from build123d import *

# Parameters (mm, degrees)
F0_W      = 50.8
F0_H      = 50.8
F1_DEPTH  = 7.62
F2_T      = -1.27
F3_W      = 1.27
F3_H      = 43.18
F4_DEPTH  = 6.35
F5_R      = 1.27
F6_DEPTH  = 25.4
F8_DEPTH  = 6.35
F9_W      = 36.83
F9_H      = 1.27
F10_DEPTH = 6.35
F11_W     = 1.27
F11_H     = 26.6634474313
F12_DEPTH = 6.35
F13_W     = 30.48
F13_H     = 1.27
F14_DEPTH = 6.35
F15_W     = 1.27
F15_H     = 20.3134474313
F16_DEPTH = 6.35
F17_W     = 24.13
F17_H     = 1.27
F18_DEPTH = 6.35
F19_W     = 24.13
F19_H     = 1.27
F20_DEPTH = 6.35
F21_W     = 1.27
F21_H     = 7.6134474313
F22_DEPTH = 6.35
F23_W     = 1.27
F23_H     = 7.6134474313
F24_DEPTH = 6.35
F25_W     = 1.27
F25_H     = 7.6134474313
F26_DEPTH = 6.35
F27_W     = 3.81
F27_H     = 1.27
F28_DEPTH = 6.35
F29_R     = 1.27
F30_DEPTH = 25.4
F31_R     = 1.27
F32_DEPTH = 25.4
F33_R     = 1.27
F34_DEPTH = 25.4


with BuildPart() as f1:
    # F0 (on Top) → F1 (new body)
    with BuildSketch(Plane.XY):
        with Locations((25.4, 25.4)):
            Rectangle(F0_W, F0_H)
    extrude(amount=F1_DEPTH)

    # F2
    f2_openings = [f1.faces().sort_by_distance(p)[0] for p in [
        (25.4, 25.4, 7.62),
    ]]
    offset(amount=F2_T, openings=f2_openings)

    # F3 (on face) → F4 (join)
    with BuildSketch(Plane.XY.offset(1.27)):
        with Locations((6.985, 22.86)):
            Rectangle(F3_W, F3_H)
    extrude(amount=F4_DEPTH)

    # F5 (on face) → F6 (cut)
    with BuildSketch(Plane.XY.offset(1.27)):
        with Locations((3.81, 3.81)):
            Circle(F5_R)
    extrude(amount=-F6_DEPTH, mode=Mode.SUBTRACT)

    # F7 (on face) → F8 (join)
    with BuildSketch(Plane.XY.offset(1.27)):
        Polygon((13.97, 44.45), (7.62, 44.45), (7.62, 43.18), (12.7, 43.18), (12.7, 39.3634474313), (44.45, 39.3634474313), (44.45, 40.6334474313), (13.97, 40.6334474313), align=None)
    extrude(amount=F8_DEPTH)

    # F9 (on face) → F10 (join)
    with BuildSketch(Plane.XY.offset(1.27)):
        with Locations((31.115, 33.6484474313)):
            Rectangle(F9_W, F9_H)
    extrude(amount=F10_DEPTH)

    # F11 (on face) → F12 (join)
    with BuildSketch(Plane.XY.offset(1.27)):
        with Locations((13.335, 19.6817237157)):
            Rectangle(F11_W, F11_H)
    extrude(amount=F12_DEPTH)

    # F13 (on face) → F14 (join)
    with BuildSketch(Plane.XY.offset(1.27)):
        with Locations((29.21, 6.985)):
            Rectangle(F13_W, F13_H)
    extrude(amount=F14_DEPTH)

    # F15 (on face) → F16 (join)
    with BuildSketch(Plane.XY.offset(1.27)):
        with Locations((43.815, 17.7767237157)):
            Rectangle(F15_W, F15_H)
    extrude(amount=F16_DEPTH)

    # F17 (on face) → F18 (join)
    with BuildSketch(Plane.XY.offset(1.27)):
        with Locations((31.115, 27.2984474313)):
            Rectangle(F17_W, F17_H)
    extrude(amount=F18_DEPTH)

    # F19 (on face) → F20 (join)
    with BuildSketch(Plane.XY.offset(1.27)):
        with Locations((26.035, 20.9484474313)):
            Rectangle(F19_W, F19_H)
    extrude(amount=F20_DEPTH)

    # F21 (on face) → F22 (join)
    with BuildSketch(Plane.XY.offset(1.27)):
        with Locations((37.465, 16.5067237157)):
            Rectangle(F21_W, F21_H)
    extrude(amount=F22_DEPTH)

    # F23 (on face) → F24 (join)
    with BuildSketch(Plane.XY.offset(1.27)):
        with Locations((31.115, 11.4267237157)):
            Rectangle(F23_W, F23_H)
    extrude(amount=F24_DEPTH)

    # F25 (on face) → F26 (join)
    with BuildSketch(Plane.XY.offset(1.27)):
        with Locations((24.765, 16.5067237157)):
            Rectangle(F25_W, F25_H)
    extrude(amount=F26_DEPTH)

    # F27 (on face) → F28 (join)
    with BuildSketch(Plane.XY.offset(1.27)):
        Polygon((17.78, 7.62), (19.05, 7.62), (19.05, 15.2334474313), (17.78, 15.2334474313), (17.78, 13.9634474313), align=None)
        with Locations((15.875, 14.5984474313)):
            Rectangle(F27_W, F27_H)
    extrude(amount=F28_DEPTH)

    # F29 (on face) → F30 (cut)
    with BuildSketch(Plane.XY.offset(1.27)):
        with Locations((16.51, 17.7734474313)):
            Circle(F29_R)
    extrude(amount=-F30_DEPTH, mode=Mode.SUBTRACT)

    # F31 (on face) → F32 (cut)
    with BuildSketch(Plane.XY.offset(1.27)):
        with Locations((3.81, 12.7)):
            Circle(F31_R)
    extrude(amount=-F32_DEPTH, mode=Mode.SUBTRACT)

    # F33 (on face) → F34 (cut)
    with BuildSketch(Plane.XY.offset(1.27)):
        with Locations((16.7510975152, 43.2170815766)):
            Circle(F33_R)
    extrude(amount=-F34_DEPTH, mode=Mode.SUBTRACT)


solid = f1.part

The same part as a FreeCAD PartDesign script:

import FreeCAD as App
import Part
import Sketcher

V = App.Vector
Q = App.Units.Quantity


def faces_at(feature, points):
    """Names of the faces that lie closest to the given points."""
    faces = feature.Shape.Faces
    near = lambda p: min(range(len(faces)), key=lambda i: faces[i].distToShape(Part.Vertex(*p))[0])
    return sorted({f"Face{near(p) + 1}" for p in points})

doc = App.newDocument("Part")
body = doc.addObject("PartDesign::Body", "Body")

# Sketch on XY plane
sketch1 = body.newObject("Sketcher::SketchObject", "Sketch")
sketch1.AttachmentSupport = (doc.getObject("XY_Plane"), [""])
sketch1.MapMode = "FlatFace"
sketch1.addGeometry([
    Part.LineSegment(V(0, 50.8, 0), V(0, 0, 0)),
    Part.LineSegment(V(0, 0, 0), V(50.8, 0, 0)),
    Part.LineSegment(V(50.8, 0, 0), V(50.8, 50.8, 0)),
    Part.LineSegment(V(50.8, 50.8, 0), V(0, 50.8, 0)),
], False)
sketch1.addConstraint([
    Sketcher.Constraint("Coincident", 0, 2, 1, 1),
    Sketcher.Constraint("Coincident", 1, 2, 2, 1),
    Sketcher.Constraint("Coincident", 2, 2, 3, 1),
    Sketcher.Constraint("Coincident", 3, 2, 0, 1),
    Sketcher.Constraint("Vertical", 0),
    Sketcher.Constraint("Horizontal", 1),
    Sketcher.Constraint("Vertical", 2),
    Sketcher.Constraint("Horizontal", 3),
    Sketcher.Constraint("Coincident", 0, 2, -1, 1),
    Sketcher.Constraint("Equal", 3, 0),
    Sketcher.Constraint("DistanceX", 1, 1, 1, 2, Q("2 in")),
])
pad1 = body.newObject("PartDesign::Pad", "Pad")
pad1.Profile = sketch1
pad1.Length = Q("0.3 in")
doc.recompute()

thickness = body.newObject("PartDesign::Thickness", "Thickness")
thickness.Base = (pad1, faces_at(pad1, [(25.4, 25.4, 7.62)]))
thickness.Value = Q("0.05 in")
thickness.Reversed = True
thickness.Join = "Arc"

# Sketch on XY plane
sketch2 = body.newObject("Sketcher::SketchObject", "Sketch001")
sketch2.AttachmentSupport = (doc.getObject("XY_Plane"), [""])
sketch2.MapMode = "FlatFace"
sketch2.AttachmentOffset = App.Placement(V(0, 0, 0.05 * 25.4), App.Rotation())
sketch2.addGeometry([
    Part.LineSegment(V(6.35, 44.45, 0), V(6.35, 1.27, 0)),
    Part.LineSegment(V(6.35, 1.27, 0), V(7.62, 1.27, 0)),
    Part.LineSegment(V(7.62, 1.27, 0), V(7.62, 44.45, 0)),
    Part.LineSegment(V(7.62, 44.45, 0), V(6.35, 44.45, 0)),
], False)
sketch2.addConstraint([
    Sketcher.Constraint("Coincident", 0, 2, 1, 1),
    Sketcher.Constraint("Coincident", 1, 2, 2, 1),
    Sketcher.Constraint("Coincident", 2, 2, 3, 1),
    Sketcher.Constraint("Coincident", 3, 2, 0, 1),
    Sketcher.Constraint("Vertical", 0),
    Sketcher.Constraint("Horizontal", 1),
    Sketcher.Constraint("Vertical", 2),
    Sketcher.Constraint("Horizontal", 3),
    Sketcher.Constraint("DistanceY", 0, 2, 0, 1, Q("1.7 in")),
    Sketcher.Constraint("DistanceX", 1, 1, 1, 2, Q("0.05 in")),
    Sketcher.Constraint("DistanceX", -1, 1, 1, 2, Q("0.3 in")),
    Sketcher.Constraint("DistanceY", -1, 1, 0, 2, Q("0.05 in")),
])
pad2 = body.newObject("PartDesign::Pad", "Pad001")
pad2.Profile = sketch2
pad2.Length = Q("0.25 in")

# Sketch on XY plane
sketch3 = body.newObject("Sketcher::SketchObject", "Sketch002")
sketch3.AttachmentSupport = (doc.getObject("XY_Plane"), [""])
sketch3.MapMode = "FlatFace"
sketch3.AttachmentOffset = App.Placement(V(0, 0, 0.05 * 25.4), App.Rotation())
sketch3.addGeometry(Part.Circle(V(3.81, 3.81, 0), V(0, 0, 1), 1.27), False)
sketch3.addConstraint([
    Sketcher.Constraint("Diameter", 0, Q("0.1 in")),
    Sketcher.Constraint("DistanceX", -1, 1, 0, 3, Q("0.15 in")),
    Sketcher.Constraint("DistanceY", -1, 1, 0, 3, Q("0.15 in")),
])
pocket1 = body.newObject("PartDesign::Pocket", "Pocket")
pocket1.Profile = sketch3
pocket1.Length = Q("1 in")

# Sketch on XY plane
sketch4 = body.newObject("Sketcher::SketchObject", "Sketch003")
sketch4.AttachmentSupport = (doc.getObject("XY_Plane"), [""])
sketch4.MapMode = "FlatFace"
sketch4.AttachmentOffset = App.Placement(V(0, 0, 0.05 * 25.4), App.Rotation())
sketch4.addGeometry([
    Part.LineSegment(V(13.97, 44.45, 0), V(7.62, 44.45, 0)),  # 0
    Part.LineSegment(V(7.62, 44.45, 0), V(7.62, 43.18, 0)),  # 1
    Part.LineSegment(V(7.62, 43.18, 0), V(12.7, 43.18, 0)),  # 2
    Part.LineSegment(V(12.7, 43.18, 0), V(12.7, 39.363447, 0)),  # 3
    Part.LineSegment(V(12.7, 39.363447, 0), V(44.45, 39.363447, 0)),  # 4
    Part.LineSegment(V(44.45, 39.363447, 0), V(44.45, 40.633447, 0)),  # 5
    Part.LineSegment(V(44.45, 40.633447, 0), V(13.97, 40.633447, 0)),  # 6
    Part.LineSegment(V(13.97, 40.633447, 0), V(13.97, 44.45, 0)),  # 7
], False)
sketch4.addConstraint([
    Sketcher.Constraint("Coincident", 0, 2, 1, 1),
    Sketcher.Constraint("Coincident", 1, 2, 2, 1),
    Sketcher.Constraint("Coincident", 2, 2, 3, 1),
    Sketcher.Constraint("Coincident", 3, 2, 4, 1),
    Sketcher.Constraint("Coincident", 4, 2, 5, 1),
    Sketcher.Constraint("Coincident", 5, 2, 6, 1),
    Sketcher.Constraint("Coincident", 6, 2, 7, 1),
    Sketcher.Constraint("Coincident", 7, 2, 0, 1),
    Sketcher.Constraint("Horizontal", 0),
    Sketcher.Constraint("Vertical", 1),
    Sketcher.Constraint("Horizontal", 2),
    Sketcher.Constraint("Vertical", 3),
    Sketcher.Constraint("Horizontal", 4),
    Sketcher.Constraint("Vertical", 5),
    Sketcher.Constraint("Horizontal", 6),
    Sketcher.Constraint("Vertical", 7),
    Sketcher.Constraint("Equal", 1, 5),
    Sketcher.Constraint("DistanceX", 2, 1, 2, 2, Q("0.2 in")),
    Sketcher.Constraint("DistanceX", 6, 2, 6, 1, Q("1.2 in")),
    Sketcher.Constraint("DistanceX", 0, 2, 0, 1, Q("0.25 in")),
    Sketcher.Constraint("DistanceY", 1, 2, 1, 1, Q("0.05 in")),
    Sketcher.Constraint("DistanceX", -1, 1, 0, 2, Q("0.3 in")),
    Sketcher.Constraint("DistanceY", -1, 1, 1, 2, Q("1.7 in")),
    Sketcher.Constraint("DistanceY", 3, 2, 3, 1, 3.816553),
])
pad3 = body.newObject("PartDesign::Pad", "Pad002")
pad3.Profile = sketch4
pad3.Length = Q("0.25 in")

# Sketch on XY plane
sketch5 = body.newObject("Sketcher::SketchObject", "Sketch004")
sketch5.AttachmentSupport = (doc.getObject("XY_Plane"), [""])
sketch5.MapMode = "FlatFace"
sketch5.AttachmentOffset = App.Placement(V(0, 0, 0.05 * 25.4), App.Rotation())
sketch5.addGeometry([
    Part.LineSegment(V(12.7, 34.283447, 0), V(12.7, 33.013447, 0)),
    Part.LineSegment(V(12.7, 33.013447, 0), V(49.53, 33.013447, 0)),
    Part.LineSegment(V(49.53, 33.013447, 0), V(49.53, 34.283447, 0)),
    Part.LineSegment(V(49.53, 34.283447, 0), V(12.7, 34.283447, 0)),
], False)
sketch5.addConstraint([
    Sketcher.Constraint("Coincident", 0, 2, 1, 1),
    Sketcher.Constraint("Coincident", 1, 2, 2, 1),
    Sketcher.Constraint("Coincident", 2, 2, 3, 1),
    Sketcher.Constraint("Coincident", 3, 2, 0, 1),
    Sketcher.Constraint("Vertical", 0),
    Sketcher.Constraint("Horizontal", 1),
    Sketcher.Constraint("Vertical", 2),
    Sketcher.Constraint("Horizontal", 3),
    Sketcher.Constraint("DistanceX", 1, 1, 1, 2, Q("1.45 in")),
    Sketcher.Constraint("DistanceY", 0, 2, 0, 1, Q("0.05 in")),
    Sketcher.Constraint("DistanceX", -1, 1, 0, 2, Q("0.5 in")),
    Sketcher.Constraint("DistanceY", -1, 1, 0, 2, 33.013447),
])
pad4 = body.newObject("PartDesign::Pad", "Pad003")
pad4.Profile = sketch5
pad4.Length = Q("0.25 in")

# Sketch on XY plane
sketch6 = body.newObject("Sketcher::SketchObject", "Sketch005")
sketch6.AttachmentSupport = (doc.getObject("XY_Plane"), [""])
sketch6.MapMode = "FlatFace"
sketch6.AttachmentOffset = App.Placement(V(0, 0, 0.05 * 25.4), App.Rotation())
sketch6.addGeometry([
    Part.LineSegment(V(12.7, 33.013447, 0), V(12.7, 6.35, 0)),
    Part.LineSegment(V(12.7, 6.35, 0), V(13.97, 6.35, 0)),
    Part.LineSegment(V(13.97, 6.35, 0), V(13.97, 33.013447, 0)),
    Part.LineSegment(V(13.97, 33.013447, 0), V(12.7, 33.013447, 0)),
], False)
sketch6.addConstraint([
    Sketcher.Constraint("Coincident", 0, 2, 1, 1),
    Sketcher.Constraint("Coincident", 1, 2, 2, 1),
    Sketcher.Constraint("Coincident", 2, 2, 3, 1),
    Sketcher.Constraint("Coincident", 3, 2, 0, 1),
    Sketcher.Constraint("Vertical", 0),
    Sketcher.Constraint("Horizontal", 1),
    Sketcher.Constraint("Vertical", 2),
    Sketcher.Constraint("Horizontal", 3),
    Sketcher.Constraint("DistanceX", 1, 1, 1, 2, Q("0.05 in")),
    Sketcher.Constraint("DistanceX", -1, 1, 0, 2, Q("0.5 in")),
    Sketcher.Constraint("DistanceY", -1, 1, 0, 2, Q("0.25 in")),
    Sketcher.Constraint("DistanceY", 0, 2, 0, 1, 26.663447),
])
pad5 = body.newObject("PartDesign::Pad", "Pad004")
pad5.Profile = sketch6
pad5.Length = Q("0.25 in")

# Sketch on XY plane
sketch7 = body.newObject("Sketcher::SketchObject", "Sketch006")
sketch7.AttachmentSupport = (doc.getObject("XY_Plane"), [""])
sketch7.MapMode = "FlatFace"
sketch7.AttachmentOffset = App.Placement(V(0, 0, 0.05 * 25.4), App.Rotation())
sketch7.addGeometry([
    Part.LineSegment(V(13.97, 7.62, 0), V(13.97, 6.35, 0)),
    Part.LineSegment(V(13.97, 6.35, 0), V(44.45, 6.35, 0)),
    Part.LineSegment(V(44.45, 6.35, 0), V(44.45, 7.62, 0)),
    Part.LineSegment(V(44.45, 7.62, 0), V(13.97, 7.62, 0)),
], False)
sketch7.addConstraint([
    Sketcher.Constraint("Coincident", 0, 2, 1, 1),
    Sketcher.Constraint("Coincident", 1, 2, 2, 1),
    Sketcher.Constraint("Coincident", 2, 2, 3, 1),
    Sketcher.Constraint("Coincident", 3, 2, 0, 1),
    Sketcher.Constraint("Vertical", 0),
    Sketcher.Constraint("Horizontal", 1),
    Sketcher.Constraint("Vertical", 2),
    Sketcher.Constraint("Horizontal", 3),
    Sketcher.Constraint("DistanceX", 1, 1, 1, 2, Q("1.2 in")),
    Sketcher.Constraint("DistanceY", 0, 2, 0, 1, Q("0.05 in")),
    Sketcher.Constraint("DistanceY", -1, 1, 2, 2, Q("0.3 in")),
    Sketcher.Constraint("DistanceX", -1, 1, 0, 2, Q("0.55 in")),
])
pad6 = body.newObject("PartDesign::Pad", "Pad005")
pad6.Profile = sketch7
pad6.Length = Q("0.25 in")

# Sketch on XY plane
sketch8 = body.newObject("Sketcher::SketchObject", "Sketch007")
sketch8.AttachmentSupport = (doc.getObject("XY_Plane"), [""])
sketch8.MapMode = "FlatFace"
sketch8.AttachmentOffset = App.Placement(V(0, 0, 0.05 * 25.4), App.Rotation())
sketch8.addGeometry([
    Part.LineSegment(V(43.18, 27.933447, 0), V(43.18, 7.62, 0)),
    Part.LineSegment(V(43.18, 7.62, 0), V(44.45, 7.62, 0)),
    Part.LineSegment(V(44.45, 7.62, 0), V(44.45, 27.933447, 0)),
    Part.LineSegment(V(44.45, 27.933447, 0), V(43.18, 27.933447, 0)),
], False)
sketch8.addConstraint([
    Sketcher.Constraint("Coincident", 0, 2, 1, 1),
    Sketcher.Constraint("Coincident", 1, 2, 2, 1),
    Sketcher.Constraint("Coincident", 2, 2, 3, 1),
    Sketcher.Constraint("Coincident", 3, 2, 0, 1),
    Sketcher.Constraint("Vertical", 0),
    Sketcher.Constraint("Horizontal", 1),
    Sketcher.Constraint("Vertical", 2),
    Sketcher.Constraint("Horizontal", 3),
    Sketcher.Constraint("DistanceX", 1, 1, 1, 2, Q("0.05 in")),
    Sketcher.Constraint("DistanceX", -1, 1, 0, 2, Q("1.7 in")),
    Sketcher.Constraint("DistanceY", -1, 1, 0, 2, Q("0.3 in")),
    Sketcher.Constraint("DistanceY", 0, 2, 0, 1, 20.313447),
])
pad7 = body.newObject("PartDesign::Pad", "Pad006")
pad7.Profile = sketch8
pad7.Length = Q("0.25 in")

# Sketch on XY plane
sketch9 = body.newObject("Sketcher::SketchObject", "Sketch008")
sketch9.AttachmentSupport = (doc.getObject("XY_Plane"), [""])
sketch9.MapMode = "FlatFace"
sketch9.AttachmentOffset = App.Placement(V(0, 0, 0.05 * 25.4), App.Rotation())
sketch9.addGeometry([
    Part.LineSegment(V(19.05, 27.933447, 0), V(19.05, 26.663447, 0)),
    Part.LineSegment(V(19.05, 26.663447, 0), V(43.18, 26.663447, 0)),
    Part.LineSegment(V(43.18, 26.663447, 0), V(43.18, 27.933447, 0)),
    Part.LineSegment(V(43.18, 27.933447, 0), V(19.05, 27.933447, 0)),
], False)
sketch9.addConstraint([
    Sketcher.Constraint("Coincident", 0, 2, 1, 1),
    Sketcher.Constraint("Coincident", 1, 2, 2, 1),
    Sketcher.Constraint("Coincident", 2, 2, 3, 1),
    Sketcher.Constraint("Coincident", 3, 2, 0, 1),
    Sketcher.Constraint("Vertical", 0),
    Sketcher.Constraint("Horizontal", 1),
    Sketcher.Constraint("Vertical", 2),
    Sketcher.Constraint("Horizontal", 3),
    Sketcher.Constraint("DistanceX", 1, 1, 1, 2, Q("0.95 in")),
    Sketcher.Constraint("DistanceY", 0, 2, 0, 1, Q("0.05 in")),
    Sketcher.Constraint("DistanceX", -1, 1, 1, 2, Q("1.7 in")),
    Sketcher.Constraint("DistanceY", -1, 1, 0, 2, 26.663447),
])
pad8 = body.newObject("PartDesign::Pad", "Pad007")
pad8.Profile = sketch9
pad8.Length = Q("0.25 in")

# Sketch on XY plane
sketch10 = body.newObject("Sketcher::SketchObject", "Sketch009")
sketch10.AttachmentSupport = (doc.getObject("XY_Plane"), [""])
sketch10.MapMode = "FlatFace"
sketch10.AttachmentOffset = App.Placement(V(0, 0, 0.05 * 25.4), App.Rotation())
sketch10.addGeometry([
    Part.LineSegment(V(13.97, 21.583447, 0), V(13.97, 20.313447, 0)),
    Part.LineSegment(V(13.97, 20.313447, 0), V(38.1, 20.313447, 0)),
    Part.LineSegment(V(38.1, 20.313447, 0), V(38.1, 21.583447, 0)),
    Part.LineSegment(V(38.1, 21.583447, 0), V(13.97, 21.583447, 0)),
], False)
sketch10.addConstraint([
    Sketcher.Constraint("Coincident", 0, 2, 1, 1),
    Sketcher.Constraint("Coincident", 1, 2, 2, 1),
    Sketcher.Constraint("Coincident", 2, 2, 3, 1),
    Sketcher.Constraint("Coincident", 3, 2, 0, 1),
    Sketcher.Constraint("Vertical", 0),
    Sketcher.Constraint("Horizontal", 1),
    Sketcher.Constraint("Vertical", 2),
    Sketcher.Constraint("Horizontal", 3),
    Sketcher.Constraint("DistanceX", 1, 1, 1, 2, Q("0.95 in")),
    Sketcher.Constraint("DistanceY", 0, 2, 0, 1, Q("0.05 in")),
    Sketcher.Constraint("DistanceX", -1, 1, 1, 2, Q("1.5 in")),
    Sketcher.Constraint("DistanceY", -1, 1, 0, 2, 20.313447),
])
pad9 = body.newObject("PartDesign::Pad", "Pad008")
pad9.Profile = sketch10
pad9.Length = Q("0.25 in")

# Sketch on XY plane
sketch11 = body.newObject("Sketcher::SketchObject", "Sketch010")
sketch11.AttachmentSupport = (doc.getObject("XY_Plane"), [""])
sketch11.MapMode = "FlatFace"
sketch11.AttachmentOffset = App.Placement(V(0, 0, 0.05 * 25.4), App.Rotation())
sketch11.addGeometry([
    Part.LineSegment(V(36.83, 20.313447, 0), V(36.83, 12.7, 0)),
    Part.LineSegment(V(36.83, 12.7, 0), V(38.1, 12.7, 0)),
    Part.LineSegment(V(38.1, 12.7, 0), V(38.1, 20.313447, 0)),
    Part.LineSegment(V(38.1, 20.313447, 0), V(36.83, 20.313447, 0)),
], False)
sketch11.addConstraint([
    Sketcher.Constraint("Coincident", 0, 2, 1, 1),
    Sketcher.Constraint("Coincident", 1, 2, 2, 1),
    Sketcher.Constraint("Coincident", 2, 2, 3, 1),
    Sketcher.Constraint("Coincident", 3, 2, 0, 1),
    Sketcher.Constraint("Vertical", 0),
    Sketcher.Constraint("Horizontal", 1),
    Sketcher.Constraint("Vertical", 2),
    Sketcher.Constraint("Horizontal", 3),
    Sketcher.Constraint("DistanceX", 1, 1, 1, 2, Q("0.05 in")),
    Sketcher.Constraint("DistanceY", -1, 1, 0, 2, Q("0.5 in")),
    Sketcher.Constraint("DistanceX", -1, 1, 1, 2, Q("1.5 in")),
    Sketcher.Constraint("DistanceY", 0, 2, 0, 1, 7.613447),
])
pad10 = body.newObject("PartDesign::Pad", "Pad009")
pad10.Profile = sketch11
pad10.Length = Q("0.25 in")

# Sketch on XY plane
sketch12 = body.newObject("Sketcher::SketchObject", "Sketch011")
sketch12.AttachmentSupport = (doc.getObject("XY_Plane"), [""])
sketch12.MapMode = "FlatFace"
sketch12.AttachmentOffset = App.Placement(V(0, 0, 0.05 * 25.4), App.Rotation())
sketch12.addGeometry([
    Part.LineSegment(V(30.48, 15.233447, 0), V(30.48, 7.62, 0)),
    Part.LineSegment(V(30.48, 7.62, 0), V(31.75, 7.62, 0)),
    Part.LineSegment(V(31.75, 7.62, 0), V(31.75, 15.233447, 0)),
    Part.LineSegment(V(31.75, 15.233447, 0), V(30.48, 15.233447, 0)),
], False)
sketch12.addConstraint([
    Sketcher.Constraint("Coincident", 0, 2, 1, 1),
    Sketcher.Constraint("Coincident", 1, 2, 2, 1),
    Sketcher.Constraint("Coincident", 2, 2, 3, 1),
    Sketcher.Constraint("Coincident", 3, 2, 0, 1),
    Sketcher.Constraint("Vertical", 0),
    Sketcher.Constraint("Horizontal", 1),
    Sketcher.Constraint("Vertical", 2),
    Sketcher.Constraint("Horizontal", 3),
    Sketcher.Constraint("DistanceX", 1, 1, 1, 2, Q("0.05 in")),
    Sketcher.Constraint("DistanceX", -1, 1, 0, 2, Q("1.2 in")),
    Sketcher.Constraint("DistanceY", -1, 1, 0, 2, Q("0.3 in")),
    Sketcher.Constraint("DistanceY", 0, 2, 0, 1, 7.613447),
])
pad11 = body.newObject("PartDesign::Pad", "Pad010")
pad11.Profile = sketch12
pad11.Length = Q("0.25 in")

# Sketch on XY plane
sketch13 = body.newObject("Sketcher::SketchObject", "Sketch012")
sketch13.AttachmentSupport = (doc.getObject("XY_Plane"), [""])
sketch13.MapMode = "FlatFace"
sketch13.AttachmentOffset = App.Placement(V(0, 0, 0.05 * 25.4), App.Rotation())
sketch13.addGeometry([
    Part.LineSegment(V(24.13, 20.313447, 0), V(24.13, 12.7, 0)),
    Part.LineSegment(V(24.13, 12.7, 0), V(25.4, 12.7, 0)),
    Part.LineSegment(V(25.4, 12.7, 0), V(25.4, 20.313447, 0)),
    Part.LineSegment(V(25.4, 20.313447, 0), V(24.13, 20.313447, 0)),
], False)
sketch13.addConstraint([
    Sketcher.Constraint("Coincident", 0, 2, 1, 1),
    Sketcher.Constraint("Coincident", 1, 2, 2, 1),
    Sketcher.Constraint("Coincident", 2, 2, 3, 1),
    Sketcher.Constraint("Coincident", 3, 2, 0, 1),
    Sketcher.Constraint("Vertical", 0),
    Sketcher.Constraint("Horizontal", 1),
    Sketcher.Constraint("Vertical", 2),
    Sketcher.Constraint("Horizontal", 3),
    Sketcher.Constraint("DistanceX", -1, 1, 1, 2, Q("1 in")),
    Sketcher.Constraint("DistanceX", 1, 1, 1, 2, Q("0.05 in")),
    Sketcher.Constraint("DistanceY", -1, 1, 0, 2, Q("0.5 in")),
    Sketcher.Constraint("DistanceY", 0, 2, 0, 1, 7.613447),
])
pad12 = body.newObject("PartDesign::Pad", "Pad011")
pad12.Profile = sketch13
pad12.Length = Q("0.25 in")

# Sketch on XY plane
sketch14 = body.newObject("Sketcher::SketchObject", "Sketch013")
sketch14.AttachmentSupport = (doc.getObject("XY_Plane"), [""])
sketch14.MapMode = "FlatFace"
sketch14.AttachmentOffset = App.Placement(V(0, 0, 0.05 * 25.4), App.Rotation())
sketch14.addGeometry([
    Part.LineSegment(V(17.78, 7.62, 0), V(19.05, 7.62, 0)),  # 0
    Part.LineSegment(V(19.05, 7.62, 0), V(19.05, 15.233447, 0)),  # 1
    Part.LineSegment(V(19.05, 15.233447, 0), V(13.97, 15.233447, 0)),  # 2
    Part.LineSegment(V(13.97, 15.233447, 0), V(13.97, 13.963447, 0)),  # 3
    Part.LineSegment(V(13.97, 13.963447, 0), V(17.78, 13.963447, 0)),  # 4
    Part.LineSegment(V(17.78, 13.963447, 0), V(17.78, 7.62, 0)),  # 5
], False)
sketch14.addConstraint([
    Sketcher.Constraint("Coincident", 0, 2, 1, 1),
    Sketcher.Constraint("Coincident", 1, 2, 2, 1),
    Sketcher.Constraint("Coincident", 2, 2, 3, 1),
    Sketcher.Constraint("Coincident", 3, 2, 4, 1),
    Sketcher.Constraint("Coincident", 4, 2, 5, 1),
    Sketcher.Constraint("Coincident", 5, 2, 0, 1),
    Sketcher.Constraint("Horizontal", 0),
    Sketcher.Constraint("Vertical", 1),
    Sketcher.Constraint("Horizontal", 2),
    Sketcher.Constraint("Vertical", 3),
    Sketcher.Constraint("Horizontal", 4),
    Sketcher.Constraint("Vertical", 5),
    Sketcher.Constraint("Equal", 0, 3),
    Sketcher.Constraint("DistanceX", 2, 2, 2, 1, Q("0.2 in")),
    Sketcher.Constraint("DistanceX", 0, 1, 0, 2, Q("0.05 in")),
    Sketcher.Constraint("DistanceY", -1, 1, 0, 2, Q("0.3 in")),
    Sketcher.Constraint("DistanceX", -1, 1, 4, 2, Q("0.7 in")),
    Sketcher.Constraint("DistanceY", 1, 1, 1, 2, 7.613447),
])
pad13 = body.newObject("PartDesign::Pad", "Pad012")
pad13.Profile = sketch14
pad13.Length = Q("0.25 in")

# Sketch on XY plane
sketch15 = body.newObject("Sketcher::SketchObject", "Sketch014")
sketch15.AttachmentSupport = (doc.getObject("XY_Plane"), [""])
sketch15.MapMode = "FlatFace"
sketch15.AttachmentOffset = App.Placement(V(0, 0, 0.05 * 25.4), App.Rotation())
sketch15.addGeometry(Part.Circle(V(16.51, 17.773447, 0), V(0, 0, 1), 1.27), False)
sketch15.addConstraint([
    Sketcher.Constraint("Diameter", 0, Q("0.1 in")),
    Sketcher.Constraint("DistanceX", -1, 1, 0, 3, Q("0.65 in")),
    Sketcher.Constraint("DistanceY", -1, 1, 0, 3, 17.773447),
])
pocket2 = body.newObject("PartDesign::Pocket", "Pocket001")
pocket2.Profile = sketch15
pocket2.Length = Q("1 in")

# Sketch on XY plane
sketch16 = body.newObject("Sketcher::SketchObject", "Sketch015")
sketch16.AttachmentSupport = (doc.getObject("XY_Plane"), [""])
sketch16.MapMode = "FlatFace"
sketch16.AttachmentOffset = App.Placement(V(0, 0, 0.05 * 25.4), App.Rotation())
sketch16.addGeometry(Part.Circle(V(3.81, 12.7, 0), V(0, 0, 1), 1.27), False)
sketch16.addConstraint([
    Sketcher.Constraint("Diameter", 0, Q("0.1 in")),
    Sketcher.Constraint("DistanceY", -1, 1, 0, 3, Q("0.5 in")),
    Sketcher.Constraint("DistanceX", -1, 1, 0, 3, Q("0.15 in")),
])
pocket3 = body.newObject("PartDesign::Pocket", "Pocket002")
pocket3.Profile = sketch16
pocket3.Length = Q("1 in")

# Sketch on XY plane
sketch17 = body.newObject("Sketcher::SketchObject", "Sketch016")
sketch17.AttachmentSupport = (doc.getObject("XY_Plane"), [""])
sketch17.MapMode = "FlatFace"
sketch17.AttachmentOffset = App.Placement(V(0, 0, 0.05 * 25.4), App.Rotation())
sketch17.addGeometry(Part.Circle(V(16.751098, 43.217082, 0), V(0, 0, 1), 1.27), False)
sketch17.addConstraint([
    Sketcher.Constraint("Diameter", 0, Q("0.1 in")),
    Sketcher.Constraint("DistanceY", -1, 1, 0, 3, 43.217082),
    Sketcher.Constraint("DistanceX", -1, 1, 0, 3, 16.751098),
])
pocket4 = body.newObject("PartDesign::Pocket", "Pocket003")
pocket4.Profile = sketch17
pocket4.Length = Q("1 in")

doc.recompute()
